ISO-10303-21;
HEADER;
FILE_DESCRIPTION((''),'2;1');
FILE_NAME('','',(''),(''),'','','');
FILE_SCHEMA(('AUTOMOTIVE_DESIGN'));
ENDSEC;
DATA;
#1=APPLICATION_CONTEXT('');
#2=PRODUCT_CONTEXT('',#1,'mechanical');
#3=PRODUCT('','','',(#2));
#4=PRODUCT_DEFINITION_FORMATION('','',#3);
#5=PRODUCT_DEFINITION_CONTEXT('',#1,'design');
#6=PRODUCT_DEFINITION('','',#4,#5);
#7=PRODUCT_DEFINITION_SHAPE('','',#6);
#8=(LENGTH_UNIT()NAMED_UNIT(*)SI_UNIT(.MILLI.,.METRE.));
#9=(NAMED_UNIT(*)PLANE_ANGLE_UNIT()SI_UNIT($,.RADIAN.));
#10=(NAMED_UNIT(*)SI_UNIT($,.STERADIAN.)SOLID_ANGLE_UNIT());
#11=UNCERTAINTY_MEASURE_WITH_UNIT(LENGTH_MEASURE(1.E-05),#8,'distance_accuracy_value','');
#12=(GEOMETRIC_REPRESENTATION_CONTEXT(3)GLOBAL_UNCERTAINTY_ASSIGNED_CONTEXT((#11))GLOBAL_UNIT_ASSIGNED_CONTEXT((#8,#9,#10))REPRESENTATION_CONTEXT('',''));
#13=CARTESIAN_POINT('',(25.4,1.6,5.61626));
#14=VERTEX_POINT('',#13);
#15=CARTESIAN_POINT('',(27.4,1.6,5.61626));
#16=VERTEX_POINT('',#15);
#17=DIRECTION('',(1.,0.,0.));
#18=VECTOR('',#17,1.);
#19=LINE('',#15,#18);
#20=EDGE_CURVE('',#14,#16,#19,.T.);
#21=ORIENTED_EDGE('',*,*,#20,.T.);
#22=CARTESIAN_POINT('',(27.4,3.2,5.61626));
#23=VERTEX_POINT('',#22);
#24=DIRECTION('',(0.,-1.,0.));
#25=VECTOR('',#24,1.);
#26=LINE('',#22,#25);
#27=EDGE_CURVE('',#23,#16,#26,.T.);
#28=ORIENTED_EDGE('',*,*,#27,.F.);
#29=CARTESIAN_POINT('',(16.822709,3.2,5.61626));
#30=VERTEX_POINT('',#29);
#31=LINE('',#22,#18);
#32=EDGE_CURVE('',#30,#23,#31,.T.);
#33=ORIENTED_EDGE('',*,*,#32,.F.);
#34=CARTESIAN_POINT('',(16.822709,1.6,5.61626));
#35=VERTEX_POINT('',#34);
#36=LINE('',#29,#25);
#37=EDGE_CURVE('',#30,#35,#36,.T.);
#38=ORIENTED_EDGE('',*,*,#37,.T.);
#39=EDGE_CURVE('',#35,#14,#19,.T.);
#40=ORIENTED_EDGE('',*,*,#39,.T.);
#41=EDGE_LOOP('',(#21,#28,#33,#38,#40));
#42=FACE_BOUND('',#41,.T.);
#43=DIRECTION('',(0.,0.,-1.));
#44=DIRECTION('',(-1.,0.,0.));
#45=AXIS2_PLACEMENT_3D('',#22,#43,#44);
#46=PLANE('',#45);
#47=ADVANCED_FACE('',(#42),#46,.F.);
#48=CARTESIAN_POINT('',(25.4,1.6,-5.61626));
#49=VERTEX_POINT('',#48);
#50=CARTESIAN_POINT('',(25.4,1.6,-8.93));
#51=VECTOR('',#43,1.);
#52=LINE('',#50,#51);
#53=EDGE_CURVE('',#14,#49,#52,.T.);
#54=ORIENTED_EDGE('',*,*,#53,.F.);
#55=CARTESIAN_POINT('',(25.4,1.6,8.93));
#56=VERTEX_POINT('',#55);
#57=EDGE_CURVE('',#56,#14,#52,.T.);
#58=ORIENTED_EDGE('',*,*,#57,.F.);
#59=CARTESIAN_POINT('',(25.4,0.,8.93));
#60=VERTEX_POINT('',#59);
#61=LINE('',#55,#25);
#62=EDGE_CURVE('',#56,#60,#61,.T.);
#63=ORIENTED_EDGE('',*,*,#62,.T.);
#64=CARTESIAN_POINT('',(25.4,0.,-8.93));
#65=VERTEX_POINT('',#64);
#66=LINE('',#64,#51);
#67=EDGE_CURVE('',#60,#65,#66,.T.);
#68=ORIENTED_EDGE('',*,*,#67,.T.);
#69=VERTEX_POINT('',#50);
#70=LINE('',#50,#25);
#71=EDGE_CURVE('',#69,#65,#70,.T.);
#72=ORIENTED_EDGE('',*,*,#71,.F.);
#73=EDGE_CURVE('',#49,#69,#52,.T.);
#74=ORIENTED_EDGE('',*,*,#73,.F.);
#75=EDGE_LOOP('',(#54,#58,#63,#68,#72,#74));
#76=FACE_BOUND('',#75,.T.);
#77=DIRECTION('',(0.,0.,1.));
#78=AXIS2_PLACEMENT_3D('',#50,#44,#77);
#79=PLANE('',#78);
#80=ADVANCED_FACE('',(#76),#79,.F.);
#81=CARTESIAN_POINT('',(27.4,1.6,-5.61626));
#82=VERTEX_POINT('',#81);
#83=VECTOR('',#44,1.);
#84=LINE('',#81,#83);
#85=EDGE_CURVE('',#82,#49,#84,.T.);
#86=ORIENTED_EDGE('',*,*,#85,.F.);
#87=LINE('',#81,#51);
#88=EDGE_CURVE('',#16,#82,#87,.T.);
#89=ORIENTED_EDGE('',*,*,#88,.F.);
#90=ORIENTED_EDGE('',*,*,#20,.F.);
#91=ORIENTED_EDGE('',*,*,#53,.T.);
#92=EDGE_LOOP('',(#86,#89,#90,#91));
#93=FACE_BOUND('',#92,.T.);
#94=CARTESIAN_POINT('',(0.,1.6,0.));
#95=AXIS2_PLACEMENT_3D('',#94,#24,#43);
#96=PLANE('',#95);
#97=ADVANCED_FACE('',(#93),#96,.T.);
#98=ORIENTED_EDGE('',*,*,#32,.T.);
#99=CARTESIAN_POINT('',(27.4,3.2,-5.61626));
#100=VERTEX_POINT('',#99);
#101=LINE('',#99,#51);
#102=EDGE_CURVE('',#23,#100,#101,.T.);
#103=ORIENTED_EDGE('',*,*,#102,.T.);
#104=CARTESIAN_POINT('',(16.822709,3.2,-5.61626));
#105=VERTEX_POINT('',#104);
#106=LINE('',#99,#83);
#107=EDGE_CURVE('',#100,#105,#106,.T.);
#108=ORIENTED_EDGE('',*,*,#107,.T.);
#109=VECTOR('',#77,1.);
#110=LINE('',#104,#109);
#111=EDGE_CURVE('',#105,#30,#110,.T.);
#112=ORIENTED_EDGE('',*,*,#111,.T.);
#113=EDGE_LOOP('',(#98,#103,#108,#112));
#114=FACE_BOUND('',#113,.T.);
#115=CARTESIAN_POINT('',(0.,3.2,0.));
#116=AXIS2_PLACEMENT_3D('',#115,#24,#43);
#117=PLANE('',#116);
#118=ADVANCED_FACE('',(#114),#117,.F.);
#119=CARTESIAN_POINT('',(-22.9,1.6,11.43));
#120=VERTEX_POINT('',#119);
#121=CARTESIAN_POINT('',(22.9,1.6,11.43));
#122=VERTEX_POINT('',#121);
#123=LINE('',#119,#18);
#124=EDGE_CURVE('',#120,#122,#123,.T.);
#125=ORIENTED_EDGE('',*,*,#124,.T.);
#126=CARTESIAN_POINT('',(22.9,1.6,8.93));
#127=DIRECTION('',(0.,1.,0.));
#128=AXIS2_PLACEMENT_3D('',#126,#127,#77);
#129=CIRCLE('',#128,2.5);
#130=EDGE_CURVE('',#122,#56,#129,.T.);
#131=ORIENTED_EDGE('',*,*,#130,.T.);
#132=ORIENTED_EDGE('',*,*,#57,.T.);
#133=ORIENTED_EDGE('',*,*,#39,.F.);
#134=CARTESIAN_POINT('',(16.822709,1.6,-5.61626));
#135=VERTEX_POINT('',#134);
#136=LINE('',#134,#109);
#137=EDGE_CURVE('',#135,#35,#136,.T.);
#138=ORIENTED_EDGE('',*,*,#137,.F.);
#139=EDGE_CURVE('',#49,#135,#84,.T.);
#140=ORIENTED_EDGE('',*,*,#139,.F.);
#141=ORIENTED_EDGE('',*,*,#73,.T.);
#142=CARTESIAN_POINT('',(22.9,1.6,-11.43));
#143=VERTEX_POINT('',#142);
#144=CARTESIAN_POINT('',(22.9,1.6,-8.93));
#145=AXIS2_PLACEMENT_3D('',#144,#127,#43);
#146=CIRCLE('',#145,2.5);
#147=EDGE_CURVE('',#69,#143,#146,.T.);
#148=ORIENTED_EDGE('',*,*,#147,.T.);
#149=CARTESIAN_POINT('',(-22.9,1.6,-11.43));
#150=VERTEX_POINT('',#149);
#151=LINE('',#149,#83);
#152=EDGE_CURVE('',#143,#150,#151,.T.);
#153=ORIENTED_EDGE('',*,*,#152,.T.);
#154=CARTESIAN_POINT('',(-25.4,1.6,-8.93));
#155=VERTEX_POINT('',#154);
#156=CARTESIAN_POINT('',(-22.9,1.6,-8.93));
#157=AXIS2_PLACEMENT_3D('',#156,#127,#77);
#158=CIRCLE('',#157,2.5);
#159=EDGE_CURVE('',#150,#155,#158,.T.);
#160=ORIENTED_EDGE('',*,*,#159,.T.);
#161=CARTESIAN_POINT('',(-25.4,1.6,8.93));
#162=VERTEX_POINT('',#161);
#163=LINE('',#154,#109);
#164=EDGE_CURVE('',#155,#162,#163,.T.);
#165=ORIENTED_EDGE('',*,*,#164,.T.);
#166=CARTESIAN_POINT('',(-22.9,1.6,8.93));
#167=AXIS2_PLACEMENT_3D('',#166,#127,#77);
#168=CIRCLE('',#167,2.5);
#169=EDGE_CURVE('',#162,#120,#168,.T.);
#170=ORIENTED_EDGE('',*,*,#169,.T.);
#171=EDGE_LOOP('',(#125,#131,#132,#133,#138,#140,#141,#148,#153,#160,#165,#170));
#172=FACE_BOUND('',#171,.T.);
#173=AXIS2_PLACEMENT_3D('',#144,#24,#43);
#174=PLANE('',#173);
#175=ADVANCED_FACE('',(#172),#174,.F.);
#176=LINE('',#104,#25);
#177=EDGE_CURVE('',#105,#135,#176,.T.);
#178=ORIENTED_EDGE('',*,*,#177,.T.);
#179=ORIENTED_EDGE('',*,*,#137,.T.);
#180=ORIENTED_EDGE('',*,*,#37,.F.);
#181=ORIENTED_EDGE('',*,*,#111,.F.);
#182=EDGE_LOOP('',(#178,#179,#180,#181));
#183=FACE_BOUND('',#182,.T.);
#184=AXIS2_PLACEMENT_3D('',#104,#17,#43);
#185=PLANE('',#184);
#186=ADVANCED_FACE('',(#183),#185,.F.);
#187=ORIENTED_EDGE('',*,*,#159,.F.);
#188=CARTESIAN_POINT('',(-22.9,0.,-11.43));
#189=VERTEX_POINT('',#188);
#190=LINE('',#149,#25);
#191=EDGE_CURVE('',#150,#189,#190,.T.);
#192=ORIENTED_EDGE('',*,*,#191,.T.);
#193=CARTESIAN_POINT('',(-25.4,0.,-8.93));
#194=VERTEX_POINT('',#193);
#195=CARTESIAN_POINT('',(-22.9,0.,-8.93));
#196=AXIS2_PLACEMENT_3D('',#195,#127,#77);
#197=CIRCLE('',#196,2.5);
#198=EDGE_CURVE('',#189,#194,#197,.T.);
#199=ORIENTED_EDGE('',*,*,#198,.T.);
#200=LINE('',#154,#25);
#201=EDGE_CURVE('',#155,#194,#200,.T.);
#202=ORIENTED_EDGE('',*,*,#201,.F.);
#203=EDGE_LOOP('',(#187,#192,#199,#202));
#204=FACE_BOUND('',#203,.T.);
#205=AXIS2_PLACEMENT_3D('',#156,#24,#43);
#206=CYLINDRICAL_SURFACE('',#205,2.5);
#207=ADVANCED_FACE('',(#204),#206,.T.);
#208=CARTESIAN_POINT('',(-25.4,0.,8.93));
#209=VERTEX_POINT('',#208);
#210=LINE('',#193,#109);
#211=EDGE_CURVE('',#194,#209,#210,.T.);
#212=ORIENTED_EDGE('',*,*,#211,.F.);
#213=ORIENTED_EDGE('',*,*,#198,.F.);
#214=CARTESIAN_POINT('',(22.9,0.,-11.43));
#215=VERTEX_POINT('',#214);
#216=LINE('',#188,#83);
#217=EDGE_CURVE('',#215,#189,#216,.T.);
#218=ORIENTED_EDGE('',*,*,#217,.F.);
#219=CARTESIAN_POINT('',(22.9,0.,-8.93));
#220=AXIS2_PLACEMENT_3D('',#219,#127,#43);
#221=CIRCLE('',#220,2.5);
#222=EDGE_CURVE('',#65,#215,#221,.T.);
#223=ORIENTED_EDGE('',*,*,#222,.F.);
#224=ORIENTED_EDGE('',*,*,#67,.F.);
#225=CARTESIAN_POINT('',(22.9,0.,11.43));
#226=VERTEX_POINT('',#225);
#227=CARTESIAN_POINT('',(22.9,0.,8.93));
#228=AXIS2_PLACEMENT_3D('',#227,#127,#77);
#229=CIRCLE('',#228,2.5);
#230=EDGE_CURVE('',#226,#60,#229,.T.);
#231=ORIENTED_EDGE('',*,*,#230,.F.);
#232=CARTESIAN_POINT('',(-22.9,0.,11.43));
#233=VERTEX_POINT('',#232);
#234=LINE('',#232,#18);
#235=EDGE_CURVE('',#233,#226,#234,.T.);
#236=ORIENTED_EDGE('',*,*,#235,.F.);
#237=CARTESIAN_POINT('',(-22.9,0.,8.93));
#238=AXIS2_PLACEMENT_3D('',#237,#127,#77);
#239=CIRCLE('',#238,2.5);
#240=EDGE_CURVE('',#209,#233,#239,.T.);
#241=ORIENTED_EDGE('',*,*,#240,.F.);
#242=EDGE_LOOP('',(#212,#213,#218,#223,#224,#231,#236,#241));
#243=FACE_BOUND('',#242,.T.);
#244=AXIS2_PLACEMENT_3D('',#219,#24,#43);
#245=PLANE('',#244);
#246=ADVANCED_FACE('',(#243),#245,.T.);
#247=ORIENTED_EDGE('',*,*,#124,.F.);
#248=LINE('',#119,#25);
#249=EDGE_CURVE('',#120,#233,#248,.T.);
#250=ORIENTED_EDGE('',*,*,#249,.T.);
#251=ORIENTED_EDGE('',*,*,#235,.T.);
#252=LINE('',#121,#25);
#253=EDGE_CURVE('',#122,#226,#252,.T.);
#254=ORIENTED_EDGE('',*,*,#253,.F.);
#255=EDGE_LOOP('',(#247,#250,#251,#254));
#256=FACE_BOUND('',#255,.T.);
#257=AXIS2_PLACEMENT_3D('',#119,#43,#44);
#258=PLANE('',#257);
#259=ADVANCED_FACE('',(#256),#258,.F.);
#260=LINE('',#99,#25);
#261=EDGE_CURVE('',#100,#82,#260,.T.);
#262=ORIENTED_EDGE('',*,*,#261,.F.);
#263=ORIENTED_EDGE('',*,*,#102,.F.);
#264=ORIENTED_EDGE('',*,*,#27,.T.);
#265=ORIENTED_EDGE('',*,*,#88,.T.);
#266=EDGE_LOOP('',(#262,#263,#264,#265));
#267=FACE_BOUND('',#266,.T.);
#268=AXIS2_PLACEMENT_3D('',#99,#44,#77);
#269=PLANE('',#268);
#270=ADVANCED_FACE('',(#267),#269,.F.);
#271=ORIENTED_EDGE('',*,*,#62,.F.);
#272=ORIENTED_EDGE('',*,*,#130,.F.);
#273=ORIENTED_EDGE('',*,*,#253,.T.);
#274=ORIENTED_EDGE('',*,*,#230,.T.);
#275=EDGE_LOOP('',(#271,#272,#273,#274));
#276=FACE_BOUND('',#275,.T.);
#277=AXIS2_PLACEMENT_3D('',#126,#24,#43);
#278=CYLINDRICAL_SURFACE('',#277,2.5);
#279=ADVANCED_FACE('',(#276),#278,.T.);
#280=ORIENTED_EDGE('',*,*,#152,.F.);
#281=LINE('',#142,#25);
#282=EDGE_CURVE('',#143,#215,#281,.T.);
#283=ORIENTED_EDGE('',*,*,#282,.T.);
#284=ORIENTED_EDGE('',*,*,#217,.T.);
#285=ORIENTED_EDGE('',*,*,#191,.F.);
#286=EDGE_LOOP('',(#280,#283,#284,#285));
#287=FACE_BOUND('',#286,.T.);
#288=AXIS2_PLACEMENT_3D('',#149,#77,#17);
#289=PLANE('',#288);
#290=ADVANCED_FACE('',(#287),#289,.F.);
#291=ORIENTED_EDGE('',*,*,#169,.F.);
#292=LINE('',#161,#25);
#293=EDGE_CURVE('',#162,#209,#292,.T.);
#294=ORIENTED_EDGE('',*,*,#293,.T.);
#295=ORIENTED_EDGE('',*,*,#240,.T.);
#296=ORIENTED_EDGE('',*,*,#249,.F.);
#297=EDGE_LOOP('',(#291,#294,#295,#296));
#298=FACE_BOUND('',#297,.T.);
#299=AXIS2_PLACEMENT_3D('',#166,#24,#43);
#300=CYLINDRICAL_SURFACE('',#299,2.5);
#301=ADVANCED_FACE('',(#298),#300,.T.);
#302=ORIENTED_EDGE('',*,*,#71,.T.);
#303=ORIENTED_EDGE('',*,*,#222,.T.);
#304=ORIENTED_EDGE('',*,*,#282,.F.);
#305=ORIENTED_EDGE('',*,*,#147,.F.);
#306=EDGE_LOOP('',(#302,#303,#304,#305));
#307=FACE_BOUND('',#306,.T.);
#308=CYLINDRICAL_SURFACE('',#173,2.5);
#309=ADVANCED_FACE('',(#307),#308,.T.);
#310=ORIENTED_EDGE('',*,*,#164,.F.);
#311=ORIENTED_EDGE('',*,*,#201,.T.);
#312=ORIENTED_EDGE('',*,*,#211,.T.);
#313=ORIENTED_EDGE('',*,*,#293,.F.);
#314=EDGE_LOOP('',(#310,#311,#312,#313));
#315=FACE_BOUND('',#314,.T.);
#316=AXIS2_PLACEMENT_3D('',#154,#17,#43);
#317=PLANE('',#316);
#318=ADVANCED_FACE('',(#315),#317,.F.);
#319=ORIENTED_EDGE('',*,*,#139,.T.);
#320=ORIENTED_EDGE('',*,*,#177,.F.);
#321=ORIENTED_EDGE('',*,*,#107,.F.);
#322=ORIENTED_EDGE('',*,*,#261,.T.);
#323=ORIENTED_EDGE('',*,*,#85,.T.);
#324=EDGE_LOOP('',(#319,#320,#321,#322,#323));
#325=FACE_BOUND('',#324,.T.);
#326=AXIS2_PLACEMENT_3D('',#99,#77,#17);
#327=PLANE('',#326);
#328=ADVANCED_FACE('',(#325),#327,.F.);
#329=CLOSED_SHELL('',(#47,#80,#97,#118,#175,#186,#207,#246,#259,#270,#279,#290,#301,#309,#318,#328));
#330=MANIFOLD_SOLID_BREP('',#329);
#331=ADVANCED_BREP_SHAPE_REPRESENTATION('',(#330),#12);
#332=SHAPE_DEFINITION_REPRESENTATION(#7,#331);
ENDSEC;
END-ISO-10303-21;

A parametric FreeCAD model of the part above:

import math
import FreeCAD as App
import Part
import Sketcher


def add_polygon(sketch, points):
    """Adds a closed chain of lines whose ends are joined by coincident constraints."""
    first, n = sketch.GeometryCount, len(points)
    for a, b in zip(points, points[1:] + points[:1]):
        sketch.addGeometry(Part.LineSegment(App.Vector(*a, 0), App.Vector(*b, 0)), False)
    for i in range(n):
        sketch.addConstraint(Sketcher.Constraint("Coincident", first + i, 2, first + (i + 1) % n, 1))

doc = App.newDocument("Part")
body = doc.addObject("PartDesign::Body", "Body")

# Sketch on XZ plane
sketch1 = body.newObject("Sketcher::SketchObject", "Sketch")
sketch1.AttachmentSupport = (doc.getObject("XZ_Plane"), [""])
sketch1.MapMode = "FlatFace"
sketch1.addGeometry([
    Part.LineSegment(App.Vector(22.9, -11.4, 0), App.Vector(-22.9, -11.4, 0)),  # 0
    Part.ArcOfCircle(Part.Circle(App.Vector(-22.9, -8.9, 0), App.Vector(0, 0, 1), 2.5), math.radians(180), math.radians(270)),  # 1
    Part.LineSegment(App.Vector(-25.4, -8.9, 0), App.Vector(-25.4, 8.9, 0)),  # 2
    Part.ArcOfCircle(Part.Circle(App.Vector(-22.9, 8.9, 0), App.Vector(0, 0, 1), 2.5), math.radians(90), math.radians(180)),  # 3
    Part.LineSegment(App.Vector(-22.9, 11.4, 0), App.Vector(22.9, 11.4, 0)),  # 4
    Part.ArcOfCircle(Part.Circle(App.Vector(22.9, 8.9, 0), App.Vector(0, 0, 1), 2.5), math.radians(0), math.radians(90)),  # 5
    Part.LineSegment(App.Vector(25.4, 8.9, 0), App.Vector(25.4, -8.9, 0)),  # 6
    Part.ArcOfCircle(Part.Circle(App.Vector(22.9, -8.9, 0), App.Vector(0, 0, 1), 2.5), math.radians(-90), math.radians(0)),  # 7
], False)
sketch1.addConstraint([
    Sketcher.Constraint("Tangent", 0, 2, 1, 2),
    Sketcher.Constraint("Tangent", 1, 1, 2, 1),
    Sketcher.Constraint("Tangent", 2, 2, 3, 2),
    Sketcher.Constraint("Tangent", 3, 1, 4, 1),
    Sketcher.Constraint("Tangent", 4, 2, 5, 2),
    Sketcher.Constraint("Tangent", 5, 1, 6, 1),
    Sketcher.Constraint("Tangent", 6, 2, 7, 2),
    Sketcher.Constraint("Tangent", 7, 1, 0, 1),
    Sketcher.Constraint("Horizontal", 0),
    Sketcher.Constraint("Vertical", 2),
    Sketcher.Constraint("Horizontal", 4),
    Sketcher.Constraint("Vertical", 6),
    Sketcher.Constraint("Equal", 1, 3),
    Sketcher.Constraint("Equal", 3, 5),
    Sketcher.Constraint("Equal", 5, 7),
    Sketcher.Constraint("Symmetric", 1, 3, 5, 3, -1, 1),
    Sketcher.Constraint("Radius", 1, 2.5),
    Sketcher.Constraint("DistanceX", 0, 2, 0, 1, 45.8),
    Sketcher.Constraint("DistanceY", 2, 1, 2, 2, 17.86),
])
pad1 = body.newObject("PartDesign::Pad", "Pad")
pad1.Profile = sketch1
pad1.Length = 1.6
pad1.Reversed = True

# Sketch on XZ plane
sketch2 = body.newObject("Sketcher::SketchObject", "Sketch001")
sketch2.AttachmentSupport = (doc.getObject("XZ_Plane"), [""])
sketch2.MapMode = "FlatFace"
sketch2.AttachmentOffset = App.Placement(App.Vector(0, 0, -1.6), App.Rotation())
add_polygon(sketch2, [(17, -6), (17, 6), (27, 6), (27, -6)])  # lines 0-3
sketch2.addConstraint([
    Sketcher.Constraint("Vertical", 0),
    Sketcher.Constraint("Horizontal", 1),
    Sketcher.Constraint("Vertical", 2),
    Sketcher.Constraint("Horizontal", 3),
    Sketcher.Constraint("DistanceX", -1, 1, 1, 2, 27.4),
    Sketcher.Constraint("DistanceX", 1, 1, 1, 2, 10.577291),
    Sketcher.Constraint("DistanceY", 0, 1, 0, 2, 11.232521),
    Sketcher.Constraint("DistanceY", -1, 1, 0, 2, 5.61626),
])
pad2 = body.newObject("PartDesign::Pad", "Pad001")
pad2.Profile = sketch2
pad2.Length = 1.6
pad2.Reversed = True

doc.recompute()
